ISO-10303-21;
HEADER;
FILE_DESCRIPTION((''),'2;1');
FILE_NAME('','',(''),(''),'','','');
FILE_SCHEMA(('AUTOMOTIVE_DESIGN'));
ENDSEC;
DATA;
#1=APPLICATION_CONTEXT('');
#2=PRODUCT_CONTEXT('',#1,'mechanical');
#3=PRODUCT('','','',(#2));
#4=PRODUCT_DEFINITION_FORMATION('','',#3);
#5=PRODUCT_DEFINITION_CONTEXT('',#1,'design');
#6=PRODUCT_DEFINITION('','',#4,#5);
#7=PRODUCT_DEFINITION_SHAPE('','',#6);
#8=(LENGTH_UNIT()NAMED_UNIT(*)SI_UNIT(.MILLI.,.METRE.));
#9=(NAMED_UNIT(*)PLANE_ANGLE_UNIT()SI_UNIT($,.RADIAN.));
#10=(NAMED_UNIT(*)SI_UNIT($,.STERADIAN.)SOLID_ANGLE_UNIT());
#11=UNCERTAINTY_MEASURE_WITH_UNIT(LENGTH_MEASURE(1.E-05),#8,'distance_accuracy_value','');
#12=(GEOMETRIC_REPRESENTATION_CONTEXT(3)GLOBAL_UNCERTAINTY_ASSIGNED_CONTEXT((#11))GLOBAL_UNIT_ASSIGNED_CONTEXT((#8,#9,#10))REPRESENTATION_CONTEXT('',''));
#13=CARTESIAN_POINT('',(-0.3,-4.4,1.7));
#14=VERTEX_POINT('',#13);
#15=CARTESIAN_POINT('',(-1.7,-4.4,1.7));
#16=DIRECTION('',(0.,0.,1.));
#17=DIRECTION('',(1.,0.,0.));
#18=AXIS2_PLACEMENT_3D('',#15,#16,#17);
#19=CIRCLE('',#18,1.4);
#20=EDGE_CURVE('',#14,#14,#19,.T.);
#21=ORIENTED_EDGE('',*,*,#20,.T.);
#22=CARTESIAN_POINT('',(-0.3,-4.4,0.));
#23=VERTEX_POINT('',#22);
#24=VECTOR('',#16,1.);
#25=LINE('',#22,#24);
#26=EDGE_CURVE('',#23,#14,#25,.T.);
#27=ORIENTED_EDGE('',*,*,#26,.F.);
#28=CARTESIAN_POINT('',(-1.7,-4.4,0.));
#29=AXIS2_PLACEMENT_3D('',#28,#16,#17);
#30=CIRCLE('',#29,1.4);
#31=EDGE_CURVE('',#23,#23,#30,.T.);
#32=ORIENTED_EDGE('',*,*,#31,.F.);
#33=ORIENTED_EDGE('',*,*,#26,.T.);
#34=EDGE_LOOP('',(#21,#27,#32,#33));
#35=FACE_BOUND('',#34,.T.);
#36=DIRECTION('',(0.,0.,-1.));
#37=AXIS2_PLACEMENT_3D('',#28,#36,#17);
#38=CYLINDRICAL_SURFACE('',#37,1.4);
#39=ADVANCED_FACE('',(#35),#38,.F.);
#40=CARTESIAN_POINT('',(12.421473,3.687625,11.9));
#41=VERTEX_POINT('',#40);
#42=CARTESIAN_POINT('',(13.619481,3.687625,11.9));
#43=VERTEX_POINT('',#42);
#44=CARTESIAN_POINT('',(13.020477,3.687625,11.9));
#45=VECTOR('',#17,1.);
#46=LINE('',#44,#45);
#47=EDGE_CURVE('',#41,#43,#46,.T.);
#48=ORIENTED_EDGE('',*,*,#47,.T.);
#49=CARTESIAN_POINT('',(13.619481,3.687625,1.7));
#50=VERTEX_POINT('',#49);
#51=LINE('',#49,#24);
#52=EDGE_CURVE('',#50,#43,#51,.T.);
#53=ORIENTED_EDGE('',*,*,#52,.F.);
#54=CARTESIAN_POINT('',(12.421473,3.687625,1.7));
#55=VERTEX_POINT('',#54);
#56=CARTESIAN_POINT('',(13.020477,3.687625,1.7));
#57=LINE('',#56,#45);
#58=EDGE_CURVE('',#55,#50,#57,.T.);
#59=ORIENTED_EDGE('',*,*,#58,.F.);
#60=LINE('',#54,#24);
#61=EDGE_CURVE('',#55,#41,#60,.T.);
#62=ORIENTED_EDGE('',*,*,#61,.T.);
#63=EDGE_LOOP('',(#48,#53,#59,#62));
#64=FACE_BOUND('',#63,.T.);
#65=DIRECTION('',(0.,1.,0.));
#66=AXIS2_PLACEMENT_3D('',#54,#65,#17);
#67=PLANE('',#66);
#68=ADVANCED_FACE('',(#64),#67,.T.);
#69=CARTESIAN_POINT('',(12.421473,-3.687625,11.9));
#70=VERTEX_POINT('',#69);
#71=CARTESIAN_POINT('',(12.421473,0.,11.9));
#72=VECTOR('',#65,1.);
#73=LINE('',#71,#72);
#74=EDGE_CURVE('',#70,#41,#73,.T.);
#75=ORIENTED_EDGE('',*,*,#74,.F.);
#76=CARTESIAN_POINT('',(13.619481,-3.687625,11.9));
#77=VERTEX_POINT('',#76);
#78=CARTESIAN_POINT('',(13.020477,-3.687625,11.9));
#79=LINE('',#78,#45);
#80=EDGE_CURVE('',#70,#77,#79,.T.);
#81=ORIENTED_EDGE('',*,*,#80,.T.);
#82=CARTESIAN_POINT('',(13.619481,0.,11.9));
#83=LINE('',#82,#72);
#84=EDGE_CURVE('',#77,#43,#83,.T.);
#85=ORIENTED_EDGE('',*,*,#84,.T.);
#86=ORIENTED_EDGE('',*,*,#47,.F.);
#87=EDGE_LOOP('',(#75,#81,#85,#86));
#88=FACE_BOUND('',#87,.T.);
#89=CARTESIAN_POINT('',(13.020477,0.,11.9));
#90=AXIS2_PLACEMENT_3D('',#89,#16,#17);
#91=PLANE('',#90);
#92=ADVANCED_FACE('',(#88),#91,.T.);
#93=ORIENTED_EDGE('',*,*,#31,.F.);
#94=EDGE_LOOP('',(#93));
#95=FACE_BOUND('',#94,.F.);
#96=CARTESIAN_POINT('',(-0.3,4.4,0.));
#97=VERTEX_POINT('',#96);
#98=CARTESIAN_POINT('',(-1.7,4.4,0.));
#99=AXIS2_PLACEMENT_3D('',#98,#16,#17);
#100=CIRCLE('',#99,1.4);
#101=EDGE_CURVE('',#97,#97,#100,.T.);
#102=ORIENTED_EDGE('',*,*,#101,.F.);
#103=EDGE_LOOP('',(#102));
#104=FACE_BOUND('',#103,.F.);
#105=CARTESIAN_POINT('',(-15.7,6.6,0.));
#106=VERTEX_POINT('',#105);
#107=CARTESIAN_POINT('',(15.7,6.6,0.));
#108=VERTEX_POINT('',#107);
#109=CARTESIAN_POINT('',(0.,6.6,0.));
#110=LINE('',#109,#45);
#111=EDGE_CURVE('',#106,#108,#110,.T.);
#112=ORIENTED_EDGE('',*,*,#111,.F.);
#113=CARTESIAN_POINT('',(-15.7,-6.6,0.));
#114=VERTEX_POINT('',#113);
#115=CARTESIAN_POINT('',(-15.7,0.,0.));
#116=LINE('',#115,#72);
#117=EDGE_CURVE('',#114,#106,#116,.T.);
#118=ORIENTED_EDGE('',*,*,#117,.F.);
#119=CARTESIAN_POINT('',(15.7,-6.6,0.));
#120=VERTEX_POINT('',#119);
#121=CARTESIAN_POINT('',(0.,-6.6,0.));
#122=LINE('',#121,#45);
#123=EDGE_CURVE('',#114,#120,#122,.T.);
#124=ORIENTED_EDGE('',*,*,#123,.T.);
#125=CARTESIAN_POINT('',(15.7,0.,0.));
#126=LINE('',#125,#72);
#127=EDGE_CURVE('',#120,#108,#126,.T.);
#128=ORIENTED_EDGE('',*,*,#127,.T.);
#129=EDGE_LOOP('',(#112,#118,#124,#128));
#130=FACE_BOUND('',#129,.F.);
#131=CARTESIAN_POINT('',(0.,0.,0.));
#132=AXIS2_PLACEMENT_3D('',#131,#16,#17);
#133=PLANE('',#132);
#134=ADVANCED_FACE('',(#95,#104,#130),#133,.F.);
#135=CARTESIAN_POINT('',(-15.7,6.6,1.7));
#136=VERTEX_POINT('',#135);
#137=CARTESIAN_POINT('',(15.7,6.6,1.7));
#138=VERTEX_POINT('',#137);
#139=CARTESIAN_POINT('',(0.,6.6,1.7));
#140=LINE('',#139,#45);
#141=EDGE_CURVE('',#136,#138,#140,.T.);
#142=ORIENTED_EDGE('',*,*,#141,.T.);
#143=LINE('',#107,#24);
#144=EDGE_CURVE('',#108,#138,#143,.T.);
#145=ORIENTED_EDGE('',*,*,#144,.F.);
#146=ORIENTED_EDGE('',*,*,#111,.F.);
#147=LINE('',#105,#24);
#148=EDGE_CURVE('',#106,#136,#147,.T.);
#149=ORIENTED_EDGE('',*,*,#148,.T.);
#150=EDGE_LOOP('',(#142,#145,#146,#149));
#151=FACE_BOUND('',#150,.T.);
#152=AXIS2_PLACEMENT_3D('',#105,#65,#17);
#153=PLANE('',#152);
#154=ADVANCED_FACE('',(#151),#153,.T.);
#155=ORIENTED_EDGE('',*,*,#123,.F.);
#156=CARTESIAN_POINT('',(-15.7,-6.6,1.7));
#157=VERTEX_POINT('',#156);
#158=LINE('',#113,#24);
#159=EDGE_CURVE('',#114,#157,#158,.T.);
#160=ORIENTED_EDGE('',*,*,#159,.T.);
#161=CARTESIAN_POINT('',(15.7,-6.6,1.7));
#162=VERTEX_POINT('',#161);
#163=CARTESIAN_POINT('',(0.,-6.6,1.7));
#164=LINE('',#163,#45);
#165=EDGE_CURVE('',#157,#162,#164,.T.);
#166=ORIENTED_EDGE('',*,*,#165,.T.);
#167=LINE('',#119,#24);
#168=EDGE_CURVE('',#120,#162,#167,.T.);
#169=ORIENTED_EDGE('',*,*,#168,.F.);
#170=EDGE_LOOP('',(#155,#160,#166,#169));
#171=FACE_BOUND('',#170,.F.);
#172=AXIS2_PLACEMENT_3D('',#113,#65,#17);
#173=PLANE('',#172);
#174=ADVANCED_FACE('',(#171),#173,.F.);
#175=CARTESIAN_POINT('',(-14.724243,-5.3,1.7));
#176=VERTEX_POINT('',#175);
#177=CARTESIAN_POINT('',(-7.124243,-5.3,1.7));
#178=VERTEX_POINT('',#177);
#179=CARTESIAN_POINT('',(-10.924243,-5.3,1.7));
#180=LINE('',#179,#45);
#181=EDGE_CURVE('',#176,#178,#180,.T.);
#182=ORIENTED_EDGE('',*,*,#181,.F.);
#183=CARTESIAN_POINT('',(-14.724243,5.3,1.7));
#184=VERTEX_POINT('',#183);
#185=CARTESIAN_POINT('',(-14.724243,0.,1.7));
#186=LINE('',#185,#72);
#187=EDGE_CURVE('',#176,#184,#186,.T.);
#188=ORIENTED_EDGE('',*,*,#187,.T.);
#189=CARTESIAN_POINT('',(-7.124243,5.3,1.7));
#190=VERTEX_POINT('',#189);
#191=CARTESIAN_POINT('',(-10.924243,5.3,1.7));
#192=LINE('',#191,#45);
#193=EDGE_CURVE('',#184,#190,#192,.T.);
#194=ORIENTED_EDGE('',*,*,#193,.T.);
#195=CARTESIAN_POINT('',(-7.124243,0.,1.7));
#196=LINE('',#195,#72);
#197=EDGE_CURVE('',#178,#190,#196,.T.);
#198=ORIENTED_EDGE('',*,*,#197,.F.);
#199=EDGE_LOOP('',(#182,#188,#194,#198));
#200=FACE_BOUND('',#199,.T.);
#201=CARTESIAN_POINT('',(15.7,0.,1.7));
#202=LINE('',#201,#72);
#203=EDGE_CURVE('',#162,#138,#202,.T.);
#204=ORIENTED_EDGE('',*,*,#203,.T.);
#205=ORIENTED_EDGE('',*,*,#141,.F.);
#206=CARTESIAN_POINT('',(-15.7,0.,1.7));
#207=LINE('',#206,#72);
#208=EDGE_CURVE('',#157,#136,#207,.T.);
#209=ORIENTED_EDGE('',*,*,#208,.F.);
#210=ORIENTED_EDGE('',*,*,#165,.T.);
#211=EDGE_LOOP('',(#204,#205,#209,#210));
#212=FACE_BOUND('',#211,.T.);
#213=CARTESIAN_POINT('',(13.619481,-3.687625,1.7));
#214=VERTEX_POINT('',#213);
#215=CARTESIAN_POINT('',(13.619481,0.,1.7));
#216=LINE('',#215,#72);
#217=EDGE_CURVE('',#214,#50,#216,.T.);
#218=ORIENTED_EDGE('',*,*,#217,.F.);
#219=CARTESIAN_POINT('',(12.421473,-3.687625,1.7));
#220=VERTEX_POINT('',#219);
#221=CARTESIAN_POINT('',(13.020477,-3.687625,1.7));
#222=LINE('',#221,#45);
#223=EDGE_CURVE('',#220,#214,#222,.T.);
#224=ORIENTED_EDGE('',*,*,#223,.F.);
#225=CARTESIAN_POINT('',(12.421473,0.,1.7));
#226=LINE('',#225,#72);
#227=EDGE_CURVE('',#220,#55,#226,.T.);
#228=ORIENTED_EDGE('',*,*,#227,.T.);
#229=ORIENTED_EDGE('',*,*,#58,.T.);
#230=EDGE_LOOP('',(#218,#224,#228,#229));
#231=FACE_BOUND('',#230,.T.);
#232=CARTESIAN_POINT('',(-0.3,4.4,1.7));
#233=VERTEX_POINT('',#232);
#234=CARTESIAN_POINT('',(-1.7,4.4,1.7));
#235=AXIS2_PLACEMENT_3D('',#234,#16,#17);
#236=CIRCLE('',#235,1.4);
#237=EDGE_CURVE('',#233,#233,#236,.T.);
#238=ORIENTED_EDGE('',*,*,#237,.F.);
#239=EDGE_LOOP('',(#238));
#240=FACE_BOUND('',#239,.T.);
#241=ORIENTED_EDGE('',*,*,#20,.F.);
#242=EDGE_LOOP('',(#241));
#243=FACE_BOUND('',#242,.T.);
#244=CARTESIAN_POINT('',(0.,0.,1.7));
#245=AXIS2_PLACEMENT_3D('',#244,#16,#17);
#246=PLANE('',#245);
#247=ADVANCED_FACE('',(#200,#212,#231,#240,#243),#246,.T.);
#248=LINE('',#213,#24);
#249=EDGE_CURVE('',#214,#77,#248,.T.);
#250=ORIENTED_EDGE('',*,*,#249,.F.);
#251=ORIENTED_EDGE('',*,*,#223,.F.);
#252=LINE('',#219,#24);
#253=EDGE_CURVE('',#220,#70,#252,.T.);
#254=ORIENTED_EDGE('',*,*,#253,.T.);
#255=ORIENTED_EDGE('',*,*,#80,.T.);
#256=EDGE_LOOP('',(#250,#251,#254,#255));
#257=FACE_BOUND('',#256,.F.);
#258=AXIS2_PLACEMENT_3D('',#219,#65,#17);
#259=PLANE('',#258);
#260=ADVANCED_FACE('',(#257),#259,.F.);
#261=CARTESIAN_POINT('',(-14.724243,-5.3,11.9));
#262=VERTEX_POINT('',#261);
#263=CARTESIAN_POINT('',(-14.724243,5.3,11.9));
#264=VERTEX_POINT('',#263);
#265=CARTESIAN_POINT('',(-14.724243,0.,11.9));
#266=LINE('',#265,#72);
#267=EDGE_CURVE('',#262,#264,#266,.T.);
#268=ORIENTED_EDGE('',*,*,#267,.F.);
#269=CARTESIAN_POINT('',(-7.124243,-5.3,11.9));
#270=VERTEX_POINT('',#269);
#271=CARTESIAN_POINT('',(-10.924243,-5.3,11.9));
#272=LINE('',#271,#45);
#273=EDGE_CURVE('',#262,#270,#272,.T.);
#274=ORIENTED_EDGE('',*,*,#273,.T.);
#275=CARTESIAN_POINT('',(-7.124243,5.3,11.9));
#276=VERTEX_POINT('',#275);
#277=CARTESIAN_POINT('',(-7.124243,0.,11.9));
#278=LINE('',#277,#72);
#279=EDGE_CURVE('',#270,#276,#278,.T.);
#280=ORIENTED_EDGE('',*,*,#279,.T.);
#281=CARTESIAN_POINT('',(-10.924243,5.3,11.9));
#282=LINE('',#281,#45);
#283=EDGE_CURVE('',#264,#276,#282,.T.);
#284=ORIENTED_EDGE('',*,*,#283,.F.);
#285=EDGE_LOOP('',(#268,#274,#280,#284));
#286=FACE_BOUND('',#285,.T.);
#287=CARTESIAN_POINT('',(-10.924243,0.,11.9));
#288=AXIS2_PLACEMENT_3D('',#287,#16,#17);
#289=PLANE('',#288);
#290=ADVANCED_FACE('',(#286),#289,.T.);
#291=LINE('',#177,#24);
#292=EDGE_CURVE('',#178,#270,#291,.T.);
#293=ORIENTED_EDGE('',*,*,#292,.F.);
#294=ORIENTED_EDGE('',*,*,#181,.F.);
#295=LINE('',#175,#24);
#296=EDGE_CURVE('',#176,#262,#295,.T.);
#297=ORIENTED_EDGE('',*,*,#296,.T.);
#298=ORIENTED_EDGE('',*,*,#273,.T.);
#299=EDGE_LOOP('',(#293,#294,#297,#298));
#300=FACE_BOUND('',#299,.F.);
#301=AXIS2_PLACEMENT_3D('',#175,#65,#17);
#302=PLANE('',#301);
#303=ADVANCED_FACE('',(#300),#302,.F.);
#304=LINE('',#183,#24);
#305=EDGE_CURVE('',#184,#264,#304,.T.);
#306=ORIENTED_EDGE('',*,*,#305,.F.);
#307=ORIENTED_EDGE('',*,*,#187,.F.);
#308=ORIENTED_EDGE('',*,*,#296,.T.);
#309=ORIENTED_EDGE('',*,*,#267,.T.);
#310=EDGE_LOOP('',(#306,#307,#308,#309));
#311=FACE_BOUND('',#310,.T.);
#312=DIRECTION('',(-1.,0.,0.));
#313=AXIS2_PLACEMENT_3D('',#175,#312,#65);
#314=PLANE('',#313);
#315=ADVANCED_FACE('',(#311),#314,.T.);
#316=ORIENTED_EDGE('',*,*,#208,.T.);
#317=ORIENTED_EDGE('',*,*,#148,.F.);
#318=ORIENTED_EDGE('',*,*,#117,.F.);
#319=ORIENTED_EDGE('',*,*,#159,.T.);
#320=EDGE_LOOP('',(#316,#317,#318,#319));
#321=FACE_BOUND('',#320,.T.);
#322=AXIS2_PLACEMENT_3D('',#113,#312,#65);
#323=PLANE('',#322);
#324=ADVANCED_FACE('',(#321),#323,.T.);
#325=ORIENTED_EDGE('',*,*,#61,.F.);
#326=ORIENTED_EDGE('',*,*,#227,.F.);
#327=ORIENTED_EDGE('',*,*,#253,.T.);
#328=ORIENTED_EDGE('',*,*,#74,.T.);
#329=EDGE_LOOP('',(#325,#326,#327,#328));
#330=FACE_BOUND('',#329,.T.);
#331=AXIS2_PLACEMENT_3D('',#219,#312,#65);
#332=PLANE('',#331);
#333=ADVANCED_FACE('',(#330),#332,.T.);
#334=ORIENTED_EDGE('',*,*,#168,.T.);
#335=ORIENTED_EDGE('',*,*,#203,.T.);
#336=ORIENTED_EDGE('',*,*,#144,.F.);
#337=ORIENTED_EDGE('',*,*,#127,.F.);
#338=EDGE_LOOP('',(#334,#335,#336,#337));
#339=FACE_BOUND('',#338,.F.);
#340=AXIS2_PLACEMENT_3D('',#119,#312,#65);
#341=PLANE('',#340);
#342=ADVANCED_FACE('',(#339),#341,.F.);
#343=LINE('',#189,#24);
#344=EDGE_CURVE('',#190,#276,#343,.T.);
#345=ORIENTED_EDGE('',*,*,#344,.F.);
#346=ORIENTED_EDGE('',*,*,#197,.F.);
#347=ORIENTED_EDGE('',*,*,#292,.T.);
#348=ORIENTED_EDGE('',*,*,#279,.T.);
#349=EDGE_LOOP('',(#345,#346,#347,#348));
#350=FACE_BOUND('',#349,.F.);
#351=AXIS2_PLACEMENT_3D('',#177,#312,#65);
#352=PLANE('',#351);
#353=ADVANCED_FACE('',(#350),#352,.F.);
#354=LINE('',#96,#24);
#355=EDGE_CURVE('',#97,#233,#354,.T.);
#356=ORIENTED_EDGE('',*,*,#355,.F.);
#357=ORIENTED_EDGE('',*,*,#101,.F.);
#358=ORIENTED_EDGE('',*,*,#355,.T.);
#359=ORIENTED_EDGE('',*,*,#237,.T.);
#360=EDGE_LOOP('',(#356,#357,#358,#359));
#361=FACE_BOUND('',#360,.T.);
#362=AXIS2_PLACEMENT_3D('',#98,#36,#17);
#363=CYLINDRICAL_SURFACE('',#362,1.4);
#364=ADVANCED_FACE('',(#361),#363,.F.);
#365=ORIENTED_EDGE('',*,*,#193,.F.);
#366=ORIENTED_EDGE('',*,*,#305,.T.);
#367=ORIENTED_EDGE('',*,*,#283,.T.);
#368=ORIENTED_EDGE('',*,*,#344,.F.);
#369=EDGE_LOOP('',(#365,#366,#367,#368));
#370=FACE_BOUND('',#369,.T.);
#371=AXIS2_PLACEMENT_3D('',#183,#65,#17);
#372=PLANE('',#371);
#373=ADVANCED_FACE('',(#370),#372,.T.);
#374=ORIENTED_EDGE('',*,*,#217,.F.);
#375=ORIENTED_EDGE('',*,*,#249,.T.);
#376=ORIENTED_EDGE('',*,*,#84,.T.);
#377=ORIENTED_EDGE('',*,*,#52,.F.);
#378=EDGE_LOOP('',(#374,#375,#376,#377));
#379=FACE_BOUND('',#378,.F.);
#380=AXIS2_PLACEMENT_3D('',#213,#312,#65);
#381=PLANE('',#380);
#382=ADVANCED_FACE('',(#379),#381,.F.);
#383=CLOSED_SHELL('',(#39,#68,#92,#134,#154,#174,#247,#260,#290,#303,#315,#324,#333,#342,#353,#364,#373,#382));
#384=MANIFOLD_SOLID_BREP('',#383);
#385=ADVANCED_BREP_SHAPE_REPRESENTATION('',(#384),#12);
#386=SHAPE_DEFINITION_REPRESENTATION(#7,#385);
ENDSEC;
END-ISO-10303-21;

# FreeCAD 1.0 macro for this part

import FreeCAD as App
import Part
import Sketcher
from FreeCAD import Vector

doc = App.newDocument("Part")
params = doc.addObject("Spreadsheet::Sheet", "Params")
for row, (alias, value) in enumerate([
    ("sketch1_diameter", "2.8 mm"),
    ("sketch1_width", "31.4 mm"),
    ("sketch1_height", "13.2 mm"),
    ("pad1_length", "1.7 mm"),
    ("sketch2_width", "7.6 mm"),
    ("sketch2_height", "10.6 mm"),
    ("pad2_length", "10.2 mm"),
], start=1):
    params.set(f"A{row}", alias)
    params.set(f"B{row}", "=" + value)
    params.setAlias(f"B{row}", alias)

body = doc.addObject("PartDesign::Body", "Body")

sketch1 = body.newObject("Sketcher::SketchObject", "Sketch")
sketch1.AttachmentSupport = (doc.getObject("XY_Plane"), [""])
sketch1.MapMode = "FlatFace"
sketch1.addGeometry(Part.LineSegment(Vector(-15.7, 6.6, 0), Vector(-15.7, -6.6, 0)), False)
sketch1.addGeometry(Part.LineSegment(Vector(-15.7, -6.6, 0), Vector(15.7, -6.6, 0)), False)
sketch1.addGeometry(Part.LineSegment(Vector(15.7, -6.6, 0), Vector(15.7, 6.6, 0)), False)
sketch1.addGeometry(Part.LineSegment(Vector(15.7, 6.6, 0), Vector(-15.7, 6.6, 0)), False)
sketch1.addGeometry(Part.Circle(Vector(-1.7, -4.4, 0), Vector(0, 0, 1), 1.4), False)
sketch1.addGeometry(Part.Circle(Vector(-1.7, 4.4, 0), Vector(0, 0, 1), 1.4), False)
sketch1.addConstraint(Sketcher.Constraint("Coincident", 0, 2, 1, 1))
sketch1.addConstraint(Sketcher.Constraint("Coincident", 1, 2, 2, 1))
sketch1.addConstraint(Sketcher.Constraint("Coincident", 2, 2, 3, 1))
sketch1.addConstraint(Sketcher.Constraint("Coincident", 3, 2, 0, 1))
sketch1.addConstraint(Sketcher.Constraint("Vertical", 0))
sketch1.addConstraint(Sketcher.Constraint("Horizontal", 1))
sketch1.addConstraint(Sketcher.Constraint("Vertical", 2))
sketch1.addConstraint(Sketcher.Constraint("Horizontal", 3))
sketch1.addConstraint(Sketcher.Constraint("Equal", 4, 5))
sketch1.addConstraint(Sketcher.Constraint("Symmetric", 0, 2, 2, 2, -1, 1))
sketch1.addConstraint(Sketcher.Constraint("Symmetric", 4, 3, 5, 3, -1))
sketch1.addConstraint(Sketcher.Constraint("Diameter", 4, 2.8))
sketch1.addConstraint(Sketcher.Constraint("DistanceX", 1, 1, 1, 2, 31.4))
sketch1.addConstraint(Sketcher.Constraint("DistanceY", 0, 2, 0, 1, 13.2))
sketch1.addConstraint(Sketcher.Constraint("DistanceX", 0, 2, 4, 3, 14.0))
sketch1.addConstraint(Sketcher.Constraint("DistanceY", 0, 2, 5, 3, 11.0))
sketch1.setExpression("Constraints[11]", "Params.sketch1_diameter")
sketch1.setExpression("Constraints[12]", "Params.sketch1_width")
sketch1.setExpression("Constraints[13]", "Params.sketch1_height")
pad1 = body.newObject("PartDesign::Pad", "Pad")
pad1.Profile = sketch1
pad1.setExpression("Length", "Params.pad1_length")

sketch2 = body.newObject("Sketcher::SketchObject", "Sketch001")
sketch2.AttachmentSupport = (doc.getObject("XY_Plane"), [""])
sketch2.MapMode = "FlatFace"
sketch2.AttachmentOffset = App.Placement(Vector(0, 0, 1.7), App.Rotation())
sketch2.addGeometry(Part.LineSegment(Vector(-14.7, 5.3, 0), Vector(-14.7, -5.3, 0)), False)
sketch2.addGeometry(Part.LineSegment(Vector(-14.7, -5.3, 0), Vector(-7.1, -5.3, 0)), False)
sketch2.addGeometry(Part.LineSegment(Vector(-7.1, -5.3, 0), Vector(-7.1, 5.3, 0)), False)
sketch2.addGeometry(Part.LineSegment(Vector(-7.1, 5.3, 0), Vector(-14.7, 5.3, 0)), False)
sketch2.addGeometry(Part.LineSegment(Vector(12.4, 3.7, 0), Vector(12.4, -3.7, 0)), False)
sketch2.addGeometry(Part.LineSegment(Vector(12.4, -3.7, 0), Vector(13.6, -3.7, 0)), False)
sketch2.addGeometry(Part.LineSegment(Vector(13.6, -3.7, 0), Vector(13.6, 3.7, 0)), False)
sketch2.addGeometry(Part.LineSegment(Vector(13.6, 3.7, 0), Vector(12.4, 3.7, 0)), False)
sketch2.addConstraint(Sketcher.Constraint("Coincident", 0, 2, 1, 1))
sketch2.addConstraint(Sketcher.Constraint("Coincident", 1, 2, 2, 1))
sketch2.addConstraint(Sketcher.Constraint("Coincident", 2, 2, 3, 1))
sketch2.addConstraint(Sketcher.Constraint("Coincident", 3, 2, 0, 1))
sketch2.addConstraint(Sketcher.Constraint("Coincident", 4, 2, 5, 1))
sketch2.addConstraint(Sketcher.Constraint("Coincident", 5, 2, 6, 1))
sketch2.addConstraint(Sketcher.Constraint("Coincident", 6, 2, 7, 1))
sketch2.addConstraint(Sketcher.Constraint("Coincident", 7, 2, 4, 1))
sketch2.addConstraint(Sketcher.Constraint("Vertical", 0))
sketch2.addConstraint(Sketcher.Constraint("Horizontal", 1))
sketch2.addConstraint(Sketcher.Constraint("Vertical", 2))
sketch2.addConstraint(Sketcher.Constraint("Horizontal", 3))
sketch2.addConstraint(Sketcher.Constraint("Vertical", 4))
sketch2.addConstraint(Sketcher.Constraint("Horizontal", 5))
sketch2.addConstraint(Sketcher.Constraint("Vertical", 6))
sketch2.addConstraint(Sketcher.Constraint("Horizontal", 7))
sketch2.addConstraint(Sketcher.Constraint("DistanceX", 1, 1, 1, 2, 7.6))
sketch2.addConstraint(Sketcher.Constraint("DistanceY", 0, 2, 0, 1, 10.6))
sketch2.addConstraint(Sketcher.Constraint("DistanceY", 0, 2, -1, 1, 5.3))
sketch2.addConstraint(Sketcher.Constraint("DistanceY", 4, 2, 4, 1, 7.37525))
sketch2.addConstraint(Sketcher.Constraint("DistanceX", 5, 1, 5, 2, 1.198008))
sketch2.addConstraint(Sketcher.Constraint("DistanceX", -1, 1, 5, 2, 13.619481))
sketch2.addConstraint(Sketcher.Constraint("DistanceX", 0, 2, -1, 1, 14.724243))
sketch2.addConstraint(Sketcher.Constraint("DistanceY", 4, 2, -1, 1, 3.687625))
sketch2.setExpression("Constraints[16]", "Params.sketch2_width")
sketch2.setExpression("Constraints[17]", "Params.sketch2_height")
pad2 = body.newObject("PartDesign::Pad", "Pad001")
pad2.Profile = sketch2
pad2.setExpression("Length", "Params.pad2_length")

doc.recompute()
